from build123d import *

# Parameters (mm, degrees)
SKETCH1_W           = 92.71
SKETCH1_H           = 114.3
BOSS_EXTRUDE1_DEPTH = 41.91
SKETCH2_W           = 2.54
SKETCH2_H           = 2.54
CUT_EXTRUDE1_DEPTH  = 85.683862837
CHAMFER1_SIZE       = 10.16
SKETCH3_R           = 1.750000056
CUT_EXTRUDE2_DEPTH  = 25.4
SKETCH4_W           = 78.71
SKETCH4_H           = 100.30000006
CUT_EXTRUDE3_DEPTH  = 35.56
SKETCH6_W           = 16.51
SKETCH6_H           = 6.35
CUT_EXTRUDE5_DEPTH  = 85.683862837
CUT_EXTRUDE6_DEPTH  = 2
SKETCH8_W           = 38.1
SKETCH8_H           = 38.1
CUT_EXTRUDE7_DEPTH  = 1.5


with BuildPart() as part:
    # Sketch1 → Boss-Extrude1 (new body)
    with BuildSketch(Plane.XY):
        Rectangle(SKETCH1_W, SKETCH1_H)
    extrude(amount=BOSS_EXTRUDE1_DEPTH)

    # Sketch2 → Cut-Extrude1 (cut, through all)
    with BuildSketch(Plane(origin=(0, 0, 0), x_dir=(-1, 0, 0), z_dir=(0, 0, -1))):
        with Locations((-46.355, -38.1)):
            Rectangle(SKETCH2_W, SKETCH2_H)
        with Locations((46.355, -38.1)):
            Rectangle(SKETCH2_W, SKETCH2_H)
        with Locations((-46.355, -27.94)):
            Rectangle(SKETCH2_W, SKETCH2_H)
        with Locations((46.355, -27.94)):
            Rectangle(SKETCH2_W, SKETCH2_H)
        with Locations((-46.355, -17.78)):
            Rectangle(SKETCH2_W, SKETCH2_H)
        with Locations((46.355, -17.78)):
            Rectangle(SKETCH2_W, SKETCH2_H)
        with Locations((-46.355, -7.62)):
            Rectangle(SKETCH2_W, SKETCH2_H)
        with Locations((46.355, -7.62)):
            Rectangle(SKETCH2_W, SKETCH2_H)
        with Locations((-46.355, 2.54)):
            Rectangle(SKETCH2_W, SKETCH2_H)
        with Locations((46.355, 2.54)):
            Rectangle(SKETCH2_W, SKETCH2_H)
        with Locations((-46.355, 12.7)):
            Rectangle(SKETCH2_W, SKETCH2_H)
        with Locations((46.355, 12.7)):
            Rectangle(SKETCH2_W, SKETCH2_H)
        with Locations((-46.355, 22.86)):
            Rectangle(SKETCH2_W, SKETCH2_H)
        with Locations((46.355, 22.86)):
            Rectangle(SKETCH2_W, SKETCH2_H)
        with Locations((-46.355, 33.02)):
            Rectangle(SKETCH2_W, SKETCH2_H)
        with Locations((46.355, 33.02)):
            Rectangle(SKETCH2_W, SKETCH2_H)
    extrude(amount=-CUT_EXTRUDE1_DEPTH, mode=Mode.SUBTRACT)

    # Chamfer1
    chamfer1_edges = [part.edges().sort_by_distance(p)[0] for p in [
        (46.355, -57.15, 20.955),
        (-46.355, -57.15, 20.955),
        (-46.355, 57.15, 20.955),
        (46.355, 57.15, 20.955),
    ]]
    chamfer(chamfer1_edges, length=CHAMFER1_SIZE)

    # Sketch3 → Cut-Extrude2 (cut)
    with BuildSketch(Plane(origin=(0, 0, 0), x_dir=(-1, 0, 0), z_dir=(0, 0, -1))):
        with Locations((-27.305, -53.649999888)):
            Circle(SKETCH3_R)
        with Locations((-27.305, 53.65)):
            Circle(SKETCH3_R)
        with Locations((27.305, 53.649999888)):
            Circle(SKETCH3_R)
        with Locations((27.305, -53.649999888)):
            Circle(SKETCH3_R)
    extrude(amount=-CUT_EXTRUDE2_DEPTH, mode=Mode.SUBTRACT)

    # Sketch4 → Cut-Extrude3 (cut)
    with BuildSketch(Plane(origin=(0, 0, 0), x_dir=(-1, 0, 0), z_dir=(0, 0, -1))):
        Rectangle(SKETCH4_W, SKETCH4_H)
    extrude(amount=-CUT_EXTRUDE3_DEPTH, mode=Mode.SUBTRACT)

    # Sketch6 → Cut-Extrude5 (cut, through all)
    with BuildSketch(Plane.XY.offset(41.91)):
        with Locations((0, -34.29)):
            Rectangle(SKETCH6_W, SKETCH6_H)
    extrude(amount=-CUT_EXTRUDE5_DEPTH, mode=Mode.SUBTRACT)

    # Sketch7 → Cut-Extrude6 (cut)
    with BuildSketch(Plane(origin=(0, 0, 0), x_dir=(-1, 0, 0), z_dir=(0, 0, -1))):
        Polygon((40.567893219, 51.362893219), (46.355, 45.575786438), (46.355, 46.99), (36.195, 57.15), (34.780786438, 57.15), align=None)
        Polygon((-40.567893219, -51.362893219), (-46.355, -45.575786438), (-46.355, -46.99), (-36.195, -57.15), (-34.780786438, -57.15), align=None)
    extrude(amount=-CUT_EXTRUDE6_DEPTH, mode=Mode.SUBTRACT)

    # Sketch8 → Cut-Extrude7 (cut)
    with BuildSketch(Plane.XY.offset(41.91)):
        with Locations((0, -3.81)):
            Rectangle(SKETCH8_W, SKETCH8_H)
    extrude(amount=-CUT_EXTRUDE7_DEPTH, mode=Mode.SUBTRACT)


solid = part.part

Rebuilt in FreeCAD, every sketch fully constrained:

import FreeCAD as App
import Part
import Sketcher
from FreeCAD import Vector
Q = App.Units.Quantity


def edges_at(feature, points):
    """Names of the edges that pass closest to the given points."""
    edges = feature.Shape.Edges
    near = lambda p: min(range(len(edges)), key=lambda i: edges[i].distToShape(Part.Vertex(*p))[0])
    return sorted({f"Edge{near(p) + 1}" for p in points})


def add_polygon(sketch, points):
    """Adds a closed chain of lines whose ends are joined by coincident constraints."""
    first, n = sketch.GeometryCount, len(points)
    for a, b in zip(points, points[1:] + points[:1]):
        sketch.addGeometry(Part.LineSegment(App.Vector(*a, 0), App.Vector(*b, 0)), False)
    for i in range(n):
        sketch.addConstraint(Sketcher.Constraint("Coincident", first + i, 2, first + (i + 1) % n, 1))

doc = App.newDocument("Part")
body = doc.addObject("PartDesign::Body", "Body")

# Sketch on XY plane
sketch1 = body.newObject("Sketcher::SketchObject", "Sketch")
sketch1.AttachmentSupport = (doc.getObject("XY_Plane"), [""])
sketch1.MapMode = "FlatFace"
add_polygon(sketch1, [(-46, 57), (-46, -57), (46, -57), (46, 57)])  # lines 0-3
sketch1.addConstraint(Sketcher.Constraint("Vertical", 0))
sketch1.addConstraint(Sketcher.Constraint("Horizontal", 1))
sketch1.addConstraint(Sketcher.Constraint("Vertical", 2))
sketch1.addConstraint(Sketcher.Constraint("Horizontal", 3))
sketch1.addConstraint(Sketcher.Constraint("Symmetric", 0, 2, 2, 2, -1, 1))
sketch1.addConstraint(Sketcher.Constraint("DistanceY", 0, 2, 0, 1, Q("4.5 in")))
sketch1.addConstraint(Sketcher.Constraint("DistanceX", 1, 1, 1, 2, Q("3.65 in")))
pad1 = body.newObject("PartDesign::Pad", "Pad")
pad1.Profile = sketch1
pad1.Length = Q("1.65 in")

# Sketch on XY plane
sketch2 = body.newObject("Sketcher::SketchObject", "Sketch001")
sketch2.AttachmentSupport = (doc.getObject("XY_Plane"), [""])
sketch2.MapMode = "FlatFace"
add_polygon(sketch2, [(47.6, -36.8), (47.6, -39.4), (45.1, -39.4), (45.1, -36.8)])  # lines 0-3
add_polygon(sketch2, [(-45.1, -36.8), (-45.1, -39.4), (-47.6, -39.4), (-47.6, -36.8)])  # lines 4-7
add_polygon(sketch2, [(47.6, -26.7), (47.6, -29.2), (45.1, -29.2), (45.1, -26.7)])  # lines 8-11
add_polygon(sketch2, [(-45.1, -26.7), (-45.1, -29.2), (-47.6, -29.2), (-47.6, -26.7)])  # lines 12-15
add_polygon(sketch2, [(47.6, -16.5), (47.6, -19.1), (45.1, -19.1), (45.1, -16.5)])  # lines 16-19
add_polygon(sketch2, [(-45.1, -16.5), (-45.1, -19.1), (-47.6, -19.1), (-47.6, -16.5)])  # lines 20-23
add_polygon(sketch2, [(47.6, -6.3), (47.6, -8.9), (45.1, -8.9), (45.1, -6.3)])  # lines 24-27
add_polygon(sketch2, [(-45.1, -6.3), (-45.1, -8.9), (-47.6, -8.9), (-47.6, -6.3)])  # lines 28-31
add_polygon(sketch2, [(47.6, 3.8), (47.6, 1.3), (45.1, 1.3), (45.1, 3.8)])  # lines 32-35
add_polygon(sketch2, [(-45.1, 3.8), (-45.1, 1.3), (-47.6, 1.3), (-47.6, 3.8)])  # lines 36-39
add_polygon(sketch2, [(47.6, 14), (47.6, 11.4), (45.1, 11.4), (45.1, 14)])  # lines 40-43
add_polygon(sketch2, [(-45.1, 14), (-45.1, 11.4), (-47.6, 11.4), (-47.6, 14)])  # lines 44-47
add_polygon(sketch2, [(47.6, 24.1), (47.6, 21.6), (45.1, 21.6), (45.1, 24.1)])  # lines 48-51
add_polygon(sketch2, [(-45.1, 24.1), (-45.1, 21.6), (-47.6, 21.6), (-47.6, 24.1)])  # lines 52-55
add_polygon(sketch2, [(47.6, 34.3), (47.6, 31.8), (45.1, 31.8), (45.1, 34.3)])  # lines 56-59
add_polygon(sketch2, [(-45.1, 34.3), (-45.1, 31.8), (-47.6, 31.8), (-47.6, 34.3)])  # lines 60-63
sketch2.addConstraint(Sketcher.Constraint("Vertical", 0))
sketch2.addConstraint(Sketcher.Constraint("Horizontal", 1))
sketch2.addConstraint(Sketcher.Constraint("Vertical", 2))
sketch2.addConstraint(Sketcher.Constraint("Horizontal", 3))
sketch2.addConstraint(Sketcher.Constraint("Vertical", 4))
sketch2.addConstraint(Sketcher.Constraint("Horizontal", 5))
sketch2.addConstraint(Sketcher.Constraint("Vertical", 6))
sketch2.addConstraint(Sketcher.Constraint("Horizontal", 7))
sketch2.addConstraint(Sketcher.Constraint("Vertical", 8))
sketch2.addConstraint(Sketcher.Constraint("Horizontal", 9))
sketch2.addConstraint(Sketcher.Constraint("Vertical", 10))
sketch2.addConstraint(Sketcher.Constraint("Horizontal", 11))
sketch2.addConstraint(Sketcher.Constraint("Vertical", 12))
sketch2.addConstraint(Sketcher.Constraint("Horizontal", 13))
sketch2.addConstraint(Sketcher.Constraint("Vertical", 14))
sketch2.addConstraint(Sketcher.Constraint("Horizontal", 15))
sketch2.addConstraint(Sketcher.Constraint("Vertical", 16))
sketch2.addConstraint(Sketcher.Constraint("Horizontal", 17))
sketch2.addConstraint(Sketcher.Constraint("Vertical", 18))
sketch2.addConstraint(Sketcher.Constraint("Horizontal", 19))
sketch2.addConstraint(Sketcher.Constraint("Vertical", 20))
sketch2.addConstraint(Sketcher.Constraint("Horizontal", 21))
sketch2.addConstraint(Sketcher.Constraint("Vertical", 22))
sketch2.addConstraint(Sketcher.Constraint("Horizontal", 23))
sketch2.addConstraint(Sketcher.Constraint("Vertical", 24))
sketch2.addConstraint(Sketcher.Constraint("Horizontal", 25))
sketch2.addConstraint(Sketcher.Constraint("Vertical", 26))
sketch2.addConstraint(Sketcher.Constraint("Horizontal", 27))
sketch2.addConstraint(Sketcher.Constraint("Vertical", 28))
sketch2.addConstraint(Sketcher.Constraint("Horizontal", 29))
sketch2.addConstraint(Sketcher.Constraint("Vertical", 30))
sketch2.addConstraint(Sketcher.Constraint("Horizontal", 31))
sketch2.addConstraint(Sketcher.Constraint("Vertical", 32))
sketch2.addConstraint(Sketcher.Constraint("Horizontal", 33))
sketch2.addConstraint(Sketcher.Constraint("Vertical", 34))
sketch2.addConstraint(Sketcher.Constraint("Horizontal", 35))
sketch2.addConstraint(Sketcher.Constraint("Vertical", 36))
sketch2.addConstraint(Sketcher.Constraint("Horizontal", 37))
sketch2.addConstraint(Sketcher.Constraint("Vertical", 38))
sketch2.addConstraint(Sketcher.Constraint("Horizontal", 39))
sketch2.addConstraint(Sketcher.Constraint("Vertical", 40))
sketch2.addConstraint(Sketcher.Constraint("Horizontal", 41))
sketch2.addConstraint(Sketcher.Constraint("Vertical", 42))
sketch2.addConstraint(Sketcher.Constraint("Horizontal", 43))
sketch2.addConstraint(Sketcher.Constraint("Vertical", 44))
sketch2.addConstraint(Sketcher.Constraint("Horizontal", 45))
sketch2.addConstraint(Sketcher.Constraint("Vertical", 46))
sketch2.addConstraint(Sketcher.Constraint("Horizontal", 47))
sketch2.addConstraint(Sketcher.Constraint("Vertical", 48))
sketch2.addConstraint(Sketcher.Constraint("Horizontal", 49))
sketch2.addConstraint(Sketcher.Constraint("Vertical", 50))
sketch2.addConstraint(Sketcher.Constraint("Horizontal", 51))
sketch2.addConstraint(Sketcher.Constraint("Vertical", 52))
sketch2.addConstraint(Sketcher.Constraint("Horizontal", 53))
sketch2.addConstraint(Sketcher.Constraint("Vertical", 54))
sketch2.addConstraint(Sketcher.Constraint("Horizontal", 55))
sketch2.addConstraint(Sketcher.Constraint("Vertical", 56))
sketch2.addConstraint(Sketcher.Constraint("Horizontal", 57))
sketch2.addConstraint(Sketcher.Constraint("Vertical", 58))
sketch2.addConstraint(Sketcher.Constraint("Horizontal", 59))
sketch2.addConstraint(Sketcher.Constraint("Vertical", 60))
sketch2.addConstraint(Sketcher.Constraint("Horizontal", 61))
sketch2.addConstraint(Sketcher.Constraint("Vertical", 62))
sketch2.addConstraint(Sketcher.Constraint("Horizontal", 63))
sketch2.addConstraint(Sketcher.Constraint("Symmetric", 1, 2, 4, 2, -2))
sketch2.addConstraint(Sketcher.Constraint("Symmetric", 3, 2, 6, 2, -2))
sketch2.addConstraint(Sketcher.Constraint("Symmetric", 9, 2, 12, 2, -2))
sketch2.addConstraint(Sketcher.Constraint("Symmetric", 11, 2, 14, 2, -2))
sketch2.addConstraint(Sketcher.Constraint("Symmetric", 17, 2, 20, 2, -2))
sketch2.addConstraint(Sketcher.Constraint("Symmetric", 19, 2, 22, 2, -2))
sketch2.addConstraint(Sketcher.Constraint("Symmetric", 25, 2, 28, 2, -2))
sketch2.addConstraint(Sketcher.Constraint("Symmetric", 27, 2, 30, 2, -2))
sketch2.addConstraint(Sketcher.Constraint("Symmetric", 33, 2, 36, 2, -2))
sketch2.addConstraint(Sketcher.Constraint("Symmetric", 35, 2, 38, 2, -2))
sketch2.addConstraint(Sketcher.Constraint("Symmetric", 41, 2, 44, 2, -2))
sketch2.addConstraint(Sketcher.Constraint("Symmetric", 43, 2, 46, 2, -2))
sketch2.addConstraint(Sketcher.Constraint("Symmetric", 49, 2, 52, 2, -2))
sketch2.addConstraint(Sketcher.Constraint("Symmetric", 51, 2, 54, 2, -2))
sketch2.addConstraint(Sketcher.Constraint("Symmetric", 57, 2, 60, 2, -2))
sketch2.addConstraint(Sketcher.Constraint("Symmetric", 59, 2, 62, 2, -2))
sketch2.addConstraint(Sketcher.Constraint("Vertical", 3, 2, 8, 2))
sketch2.addConstraint(Sketcher.Constraint("Vertical", 2, 2, 9, 2))
sketch2.addConstraint(Sketcher.Constraint("Vertical", 11, 2, 16, 2))
sketch2.addConstraint(Sketcher.Constraint("Vertical", 10, 2, 17, 2))
sketch2.addConstraint(Sketcher.Constraint("Vertical", 19, 2, 24, 2))
sketch2.addConstraint(Sketcher.Constraint("Vertical", 18, 2, 25, 2))
sketch2.addConstraint(Sketcher.Constraint("Vertical", 27, 2, 32, 2))
sketch2.addConstraint(Sketcher.Constraint("Vertical", 26, 2, 33, 2))
sketch2.addConstraint(Sketcher.Constraint("Vertical", 35, 2, 40, 2))
sketch2.addConstraint(Sketcher.Constraint("Vertical", 34, 2, 41, 2))
sketch2.addConstraint(Sketcher.Constraint("Vertical", 43, 2, 48, 2))
sketch2.addConstraint(Sketcher.Constraint("Vertical", 42, 2, 49, 2))
sketch2.addConstraint(Sketcher.Constraint("Vertical", 51, 2, 56, 2))
sketch2.addConstraint(Sketcher.Constraint("Vertical", 50, 2, 57, 2))
sketch2.addConstraint(Sketcher.Constraint("Equal", 63, 0))
sketch2.addConstraint(Sketcher.Constraint("Equal", 6, 8))
sketch2.addConstraint(Sketcher.Constraint("Equal", 14, 16))
sketch2.addConstraint(Sketcher.Constraint("Equal", 22, 24))
sketch2.addConstraint(Sketcher.Constraint("Equal", 30, 32))
sketch2.addConstraint(Sketcher.Constraint("Equal", 38, 40))
sketch2.addConstraint(Sketcher.Constraint("Equal", 46, 48))
sketch2.addConstraint(Sketcher.Constraint("Equal", 54, 56))
sketch2.addConstraint(Sketcher.Constraint("DistanceX", 1, 2, 1, 1, Q("0.1 in")))
sketch2.addConstraint(Sketcher.Constraint("DistanceY", 0, 2, -1, 1, Q("1.55 in")))
sketch2.addConstraint(Sketcher.Constraint("DistanceY", 8, 2, -1, 1, Q("1.15 in")))
sketch2.addConstraint(Sketcher.Constraint("DistanceY", 16, 2, -1, 1, Q("0.75 in")))
sketch2.addConstraint(Sketcher.Constraint("DistanceY", 24, 2, -1, 1, Q("0.35 in")))
sketch2.addConstraint(Sketcher.Constraint("DistanceY", -1, 1, 32, 2, Q("0.05 in")))
sketch2.addConstraint(Sketcher.Constraint("DistanceY", -1, 1, 40, 2, Q("0.45 in")))
sketch2.addConstraint(Sketcher.Constraint("DistanceY", -1, 1, 48, 2, Q("0.85 in")))
sketch2.addConstraint(Sketcher.Constraint("DistanceY", -1, 1, 56, 2, Q("1.25 in")))
sketch2.addConstraint(Sketcher.Constraint("DistanceX", -1, 1, 0, 2, Q("1.875 in")))
pocket1 = body.newObject("PartDesign::Pocket", "Pocket")
pocket1.Profile = sketch2
pocket1.Type = "ThroughAll"
pocket1.Reversed = True
doc.recompute()

chamfer = body.newObject("PartDesign::Chamfer", "Chamfer")
chamfer.Base = (pocket1, edges_at(pocket1, [
    (46.355, -57.15, 20.955),
    (-46.355, -57.15, 20.955),
    (-46.355, 57.15, 20.955),
    (46.355, 57.15, 20.955),
]))
chamfer.Size = Q("0.4 in")

# Sketch on XY plane
sketch3 = body.newObject("Sketcher::SketchObject", "Sketch002")
sketch3.AttachmentSupport = (doc.getObject("XY_Plane"), [""])
sketch3.MapMode = "FlatFace"
sketch3.addGeometry(Part.Circle(Vector(27.3, -53.6, 0), Vector(0, 0, 1), 1.8), False)
sketch3.addGeometry(Part.Circle(Vector(27.3, 53.6, 0), Vector(0, 0, 1), 1.8), False)
sketch3.addGeometry(Part.Circle(Vector(-27.3, 53.6, 0), Vector(0, 0, 1), 1.8), False)
sketch3.addGeometry(Part.Circle(Vector(-27.3, -53.6, 0), Vector(0, 0, 1), 1.8), False)
sketch3.addConstraint(Sketcher.Constraint("Equal", 0, 1))
sketch3.addConstraint(Sketcher.Constraint("Equal", 1, 2))
sketch3.addConstraint(Sketcher.Constraint("Equal", 2, 3))
sketch3.addConstraint(Sketcher.Constraint("Symmetric", 0, 3, 2, 3, -1, 1))
sketch3.addConstraint(Sketcher.Constraint("Symmetric", 1, 3, 3, 3, -1, 1))
sketch3.addConstraint(Sketcher.Constraint("Symmetric", 1, 3, 2, 3, -2))
sketch3.addConstraint(Sketcher.Constraint("Diameter", 0, 3.5))
sketch3.addConstraint(Sketcher.Constraint("DistanceX", 2, 3, 1, 3, Q("2.15 in")))
sketch3.addConstraint(Sketcher.Constraint("DistanceY", 0, 3, -1, 1, 53.65))
pocket2 = body.newObject("PartDesign::Pocket", "Pocket001")
pocket2.Profile = sketch3
pocket2.Length = Q("1 in")
pocket2.Reversed = True

# Sketch on XY plane
sketch4 = body.newObject("Sketcher::SketchObject", "Sketch003")
sketch4.AttachmentSupport = (doc.getObject("XY_Plane"), [""])
sketch4.MapMode = "FlatFace"
add_polygon(sketch4, [(39, 50), (39, -50), (-39, -50), (-39, 50)])  # lines 0-3
sketch4.addConstraint(Sketcher.Constraint("Vertical", 0))
sketch4.addConstraint(Sketcher.Constraint("Horizontal", 1))
sketch4.addConstraint(Sketcher.Constraint("Vertical", 2))
sketch4.addConstraint(Sketcher.Constraint("Horizontal", 3))
sketch4.addConstraint(Sketcher.Constraint("Symmetric", 0, 2, 2, 2, -1, 1))
sketch4.addConstraint(Sketcher.Constraint("DistanceX", 1, 2, 1, 1, 78.71))
sketch4.addConstraint(Sketcher.Constraint("DistanceY", 0, 2, 0, 1, 100.3))
pocket3 = body.newObject("PartDesign::Pocket", "Pocket002")
pocket3.Profile = sketch4
pocket3.Length = Q("1.4 in")
pocket3.Reversed = True

# Sketch on XY plane
sketch5 = body.newObject("Sketcher::SketchObject", "Sketch004")
sketch5.AttachmentSupport = (doc.getObject("XY_Plane"), [""])
sketch5.MapMode = "FlatFace"
sketch5.AttachmentOffset = App.Placement(Vector(0, 0, 1.65 * 25.4), App.Rotation())
add_polygon(sketch5, [(-8, -31), (-8, -37), (8, -37), (8, -31)])  # lines 0-3
sketch5.addConstraint(Sketcher.Constraint("Vertical", 0))
sketch5.addConstraint(Sketcher.Constraint("Horizontal", 1))
sketch5.addConstraint(Sketcher.Constraint("Vertical", 2))
sketch5.addConstraint(Sketcher.Constraint("Horizontal", 3))
sketch5.addConstraint(Sketcher.Constraint("DistanceX", 1, 1, 1, 2, Q("0.65 in")))
sketch5.addConstraint(Sketcher.Constraint("DistanceY", 0, 2, 0, 1, Q("0.25 in")))
sketch5.addConstraint(Sketcher.Constraint("DistanceX", 0, 2, -1, 1, Q("0.325 in")))
sketch5.addConstraint(Sketcher.Constraint("DistanceY", 0, 2, -1, 1, Q("1.475 in")))
pocket4 = body.newObject("PartDesign::Pocket", "Pocket003")
pocket4.Profile = sketch5
pocket4.Type = "ThroughAll"

# Sketch on XY plane
sketch6 = body.newObject("Sketcher::SketchObject", "Sketch005")
sketch6.AttachmentSupport = (doc.getObject("XY_Plane"), [""])
sketch6.MapMode = "FlatFace"
add_polygon(sketch6, [(-46.4, 45.6), (-46.4, 47), (-36.2, 57.1), (-34.8, 57.1)])  # lines 0-3
add_polygon(sketch6, [(46.4, -45.6), (46.4, -47), (36.2, -57.1), (34.8, -57.1)])  # lines 4-7
sketch6.addConstraint(Sketcher.Constraint("Vertical", 0))
sketch6.addConstraint(Sketcher.Constraint("Horizontal", 2))
sketch6.addConstraint(Sketcher.Constraint("Vertical", 4))
sketch6.addConstraint(Sketcher.Constraint("Horizontal", 6))
sketch6.addConstraint(Sketcher.Constraint("Symmetric", 0, 2, 4, 2, -1, 1))
sketch6.addConstraint(Sketcher.Constraint("Symmetric", 1, 2, 5, 2, -1, 1))
sketch6.addConstraint(Sketcher.Constraint("Parallel", 1, 3))
sketch6.addConstraint(Sketcher.Constraint("Parallel", 5, 7))
sketch6.addConstraint(Sketcher.Constraint("Equal", 2, 6))
sketch6.addConstraint(Sketcher.Constraint("Equal", 6, 0))
sketch6.addConstraint(Sketcher.Constraint("DistanceX", 0, 2, 1, 2, Q("0.4 in")))
sketch6.addConstraint(Sketcher.Constraint("DistanceY", 4, 2, 0, 2, Q("3.7 in")))
sketch6.addConstraint(Sketcher.Constraint("DistanceX", 3, 2, 4, 2, Q("3.65 in")))
sketch6.addConstraint(Sketcher.Constraint("Distance", 3, 16.36841))
pocket5 = body.newObject("PartDesign::Pocket", "Pocket004")
pocket5.Profile = sketch6
pocket5.Length = 2
pocket5.Reversed = True

# Sketch on XY plane
sketch7 = body.newObject("Sketcher::SketchObject", "Sketch006")
sketch7.AttachmentSupport = (doc.getObject("XY_Plane"), [""])
sketch7.MapMode = "FlatFace"
sketch7.AttachmentOffset = App.Placement(Vector(0, 0, 1.65 * 25.4), App.Rotation())
add_polygon(sketch7, [(-19, 15), (-19, -23), (19, -23), (19, 15)])  # lines 0-3
sketch7.addConstraint(Sketcher.Constraint("Vertical", 0))
sketch7.addConstraint(Sketcher.Constraint("Horizontal", 1))
sketch7.addConstraint(Sketcher.Constraint("Vertical", 2))
sketch7.addConstraint(Sketcher.Constraint("Horizontal", 3))
sketch7.addConstraint(Sketcher.Constraint("Equal", 3, 0))
sketch7.addConstraint(Sketcher.Constraint("DistanceX", 1, 1, 1, 2, Q("1.5 in")))
sketch7.addConstraint(Sketcher.Constraint("DistanceY", 0, 2, -1, 1, Q("0.9 in")))
sketch7.addConstraint(Sketcher.Constraint("DistanceX", 0, 2, -1, 1, Q("0.75 in")))
pocket6 = body.newObject("PartDesign::Pocket", "Pocket005")
pocket6.Profile = sketch7
pocket6.Length = 1.5

doc.recompute()
